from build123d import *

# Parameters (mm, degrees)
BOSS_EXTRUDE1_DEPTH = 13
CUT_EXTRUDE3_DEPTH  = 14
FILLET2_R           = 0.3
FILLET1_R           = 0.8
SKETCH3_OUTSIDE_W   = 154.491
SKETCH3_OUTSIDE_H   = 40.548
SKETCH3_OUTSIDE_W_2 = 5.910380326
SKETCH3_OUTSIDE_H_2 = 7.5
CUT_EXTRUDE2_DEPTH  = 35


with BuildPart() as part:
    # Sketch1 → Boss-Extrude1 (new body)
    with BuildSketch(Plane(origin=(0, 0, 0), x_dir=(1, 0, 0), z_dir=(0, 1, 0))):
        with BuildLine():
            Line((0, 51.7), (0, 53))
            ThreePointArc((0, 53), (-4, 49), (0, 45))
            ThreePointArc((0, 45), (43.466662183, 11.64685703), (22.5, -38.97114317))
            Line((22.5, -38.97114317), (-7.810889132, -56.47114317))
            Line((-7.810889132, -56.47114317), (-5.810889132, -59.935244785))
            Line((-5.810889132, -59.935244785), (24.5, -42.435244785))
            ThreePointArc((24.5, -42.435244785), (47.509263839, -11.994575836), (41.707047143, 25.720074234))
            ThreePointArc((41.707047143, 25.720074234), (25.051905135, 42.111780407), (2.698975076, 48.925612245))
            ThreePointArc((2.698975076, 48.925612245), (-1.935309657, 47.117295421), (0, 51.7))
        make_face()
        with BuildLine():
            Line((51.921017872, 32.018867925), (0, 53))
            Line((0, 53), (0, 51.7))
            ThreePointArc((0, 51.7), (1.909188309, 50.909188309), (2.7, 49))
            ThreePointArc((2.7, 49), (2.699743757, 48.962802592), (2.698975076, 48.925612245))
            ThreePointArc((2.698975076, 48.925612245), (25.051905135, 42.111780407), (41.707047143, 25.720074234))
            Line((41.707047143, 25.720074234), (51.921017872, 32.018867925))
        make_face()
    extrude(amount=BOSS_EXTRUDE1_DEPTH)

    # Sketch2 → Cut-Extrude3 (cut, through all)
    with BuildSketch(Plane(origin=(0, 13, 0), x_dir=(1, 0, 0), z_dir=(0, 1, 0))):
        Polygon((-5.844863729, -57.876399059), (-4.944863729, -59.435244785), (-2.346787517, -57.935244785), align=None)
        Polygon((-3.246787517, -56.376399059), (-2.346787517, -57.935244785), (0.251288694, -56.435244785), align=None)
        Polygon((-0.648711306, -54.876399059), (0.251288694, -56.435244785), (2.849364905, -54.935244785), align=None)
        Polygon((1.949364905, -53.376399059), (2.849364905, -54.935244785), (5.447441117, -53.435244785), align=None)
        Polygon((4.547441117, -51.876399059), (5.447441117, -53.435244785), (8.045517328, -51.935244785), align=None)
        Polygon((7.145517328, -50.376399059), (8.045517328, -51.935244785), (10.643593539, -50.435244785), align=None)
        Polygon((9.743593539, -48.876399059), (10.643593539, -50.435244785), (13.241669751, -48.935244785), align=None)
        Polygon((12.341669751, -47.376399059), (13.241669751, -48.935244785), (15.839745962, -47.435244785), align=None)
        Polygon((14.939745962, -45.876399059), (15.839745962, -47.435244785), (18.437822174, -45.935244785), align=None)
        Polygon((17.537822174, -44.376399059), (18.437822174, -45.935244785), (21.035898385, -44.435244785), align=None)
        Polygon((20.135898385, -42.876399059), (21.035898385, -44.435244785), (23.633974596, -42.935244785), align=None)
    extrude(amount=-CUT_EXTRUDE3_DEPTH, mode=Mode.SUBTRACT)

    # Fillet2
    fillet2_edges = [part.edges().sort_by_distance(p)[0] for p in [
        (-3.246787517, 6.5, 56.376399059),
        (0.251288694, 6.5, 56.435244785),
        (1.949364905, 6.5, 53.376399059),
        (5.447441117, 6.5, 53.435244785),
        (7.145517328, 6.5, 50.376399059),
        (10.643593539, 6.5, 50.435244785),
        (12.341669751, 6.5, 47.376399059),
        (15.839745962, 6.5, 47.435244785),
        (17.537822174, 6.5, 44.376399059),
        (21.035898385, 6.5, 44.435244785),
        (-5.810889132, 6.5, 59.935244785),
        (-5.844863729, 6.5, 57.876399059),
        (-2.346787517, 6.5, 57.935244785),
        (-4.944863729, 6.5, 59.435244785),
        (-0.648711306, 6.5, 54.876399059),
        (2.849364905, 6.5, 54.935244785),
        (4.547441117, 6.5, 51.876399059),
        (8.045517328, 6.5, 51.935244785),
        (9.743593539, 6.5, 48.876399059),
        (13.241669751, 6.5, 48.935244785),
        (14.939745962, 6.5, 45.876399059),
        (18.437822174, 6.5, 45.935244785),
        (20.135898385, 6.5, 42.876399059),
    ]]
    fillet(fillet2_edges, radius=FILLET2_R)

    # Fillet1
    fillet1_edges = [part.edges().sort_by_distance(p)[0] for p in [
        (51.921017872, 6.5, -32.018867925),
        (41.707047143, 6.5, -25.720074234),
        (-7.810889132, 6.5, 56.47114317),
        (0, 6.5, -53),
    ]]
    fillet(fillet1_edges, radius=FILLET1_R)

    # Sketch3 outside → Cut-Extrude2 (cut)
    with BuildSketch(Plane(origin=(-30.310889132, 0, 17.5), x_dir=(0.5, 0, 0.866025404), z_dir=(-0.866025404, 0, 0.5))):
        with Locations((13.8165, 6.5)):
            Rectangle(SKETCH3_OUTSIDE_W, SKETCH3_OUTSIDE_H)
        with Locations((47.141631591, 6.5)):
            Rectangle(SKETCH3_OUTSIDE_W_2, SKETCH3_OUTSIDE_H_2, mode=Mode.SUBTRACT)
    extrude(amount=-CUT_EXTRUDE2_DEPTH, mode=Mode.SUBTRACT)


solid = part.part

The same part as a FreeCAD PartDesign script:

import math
import FreeCAD as App
import Part
import Sketcher
Q = App.Units.Quantity


def edges_at(feature, points):
    """Names of the edges that pass closest to the given points."""
    edges = feature.Shape.Edges
    near = lambda p: min(range(len(edges)), key=lambda i: edges[i].distToShape(Part.Vertex(*p))[0])
    return sorted({f"Edge{near(p) + 1}" for p in points})


def add_polygon(sketch, points):
    """Adds a closed chain of lines whose ends are joined by coincident constraints."""
    first, n = sketch.GeometryCount, len(points)
    for a, b in zip(points, points[1:] + points[:1]):
        sketch.addGeometry(Part.LineSegment(App.Vector(*a, 0), App.Vector(*b, 0)), False)
    for i in range(n):
        sketch.addConstraint(Sketcher.Constraint("Coincident", first + i, 2, first + (i + 1) % n, 1))

doc = App.newDocument("Part")
body = doc.addObject("PartDesign::Body", "Body")

sketch1 = doc.addObject("Sketcher::SketchObject", "Sketch")
body.addObject(sketch1)
sketch1.AttachmentSupport = (doc.XZ_Plane, [""])
sketch1.MapMode = "FlatFace"
sketch1.addGeometry(Part.ArcOfCircle(Part.Circle(App.Vector(0, -49, 0), App.Vector(0, 0, 1), 4), math.radians(90), math.radians(270)), False)
sketch1.addGeometry(Part.ArcOfCircle(Part.Circle(App.Vector(0, 0, 0), App.Vector(0, 0, 1), 45), math.radians(-90), math.radians(60)), False)
sketch1.addGeometry(Part.LineSegment(App.Vector(22.5, 38.97, 0), App.Vector(-7.81, 56.47, 0)), False)
sketch1.addGeometry(Part.LineSegment(App.Vector(-7.81, 56.47, 0), App.Vector(-5.81, 59.94, 0)), False)
sketch1.addGeometry(Part.LineSegment(App.Vector(-5.81, 59.94, 0), App.Vector(24.5, 42.44, 0)), False)
sketch1.addGeometry(Part.ArcOfCircle(Part.Circle(App.Vector(0, 0, 0), App.Vector(0, 0, 1), 49), math.radians(-32), math.radians(60)), False)
sketch1.addGeometry(Part.LineSegment(App.Vector(41.71, -25.72, 0), App.Vector(51.92, -32.02, 0)), False)
sketch1.addGeometry(Part.LineSegment(App.Vector(51.92, -32.02, 0), App.Vector(0, -53, 0)), False)
sketch1.addGeometry(Part.ArcOfCircle(Part.Circle(App.Vector(0, -49, 0), App.Vector(0, 0, 1), 2.7), math.radians(2), math.radians(270)), False)
sketch1.addGeometry(Part.ArcOfCircle(Part.Circle(App.Vector(0, -49, 0), App.Vector(0, 0, 1), 2.7), math.radians(-90), math.radians(0)), False)
sketch1.addGeometry(Part.ArcOfCircle(Part.Circle(App.Vector(0, -49, 0), App.Vector(0, 0, 1), 2.7), math.radians(0), math.radians(1.58)), False)
sketch1.addConstraint(Sketcher.Constraint("Tangent", 0, 1, 1, 1))
sketch1.addConstraint(Sketcher.Constraint("Tangent", 1, 2, 2, 1))
sketch1.addConstraint(Sketcher.Constraint("Coincident", 2, 2, 3, 1))
sketch1.addConstraint(Sketcher.Constraint("Coincident", 3, 2, 4, 1))
sketch1.addConstraint(Sketcher.Constraint("Tangent", 4, 2, 5, 2))
sketch1.addConstraint(Sketcher.Constraint("Coincident", 5, 1, 6, 1))
sketch1.addConstraint(Sketcher.Constraint("Coincident", 6, 2, 7, 1))
sketch1.addConstraint(Sketcher.Constraint("Coincident", 7, 2, 0, 2))
sketch1.addConstraint(Sketcher.Constraint("Tangent", 8, 2, 9, 1))
sketch1.addConstraint(Sketcher.Constraint("Tangent", 9, 2, 10, 1))
sketch1.addConstraint(Sketcher.Constraint("Tangent", 10, 2, 8, 1))
sketch1.addConstraint(Sketcher.Constraint("Coincident", 1, 3, -1, 1))
sketch1.addConstraint(Sketcher.Constraint("Coincident", 5, 3, -1, 1))
sketch1.addConstraint(Sketcher.Constraint("Coincident", 8, 3, 0, 3))
sketch1.addConstraint(Sketcher.Constraint("PointOnObject", 0, 3, -2))
sketch1.addConstraint(Sketcher.Constraint("PointOnObject", 7, 2, -2))
sketch1.addConstraint(Sketcher.Constraint("PointOnObject", 8, 2, -2))
sketch1.addConstraint(Sketcher.Constraint("Perpendicular", 2, 3))
sketch1.addConstraint(Sketcher.Constraint("Perpendicular", 3, 4))
sketch1.addConstraint(Sketcher.Constraint("Horizontal", 10, 3, 9, 2))
sketch1.addConstraint(Sketcher.Constraint("Radius", 0, 4.0))
sketch1.addConstraint(Sketcher.Constraint("Radius", 1, 45.0))
sketch1.addConstraint(Sketcher.Constraint("Radius", 5, 49.0))
sketch1.addConstraint(Sketcher.Constraint("Radius", 8, 2.7))
sketch1.addConstraint(Sketcher.Constraint("Angle", 2, Q("150 deg")))
sketch1.addConstraint(Sketcher.Constraint("Distance", 2, 35.0))
sketch1.addConstraint(Sketcher.Constraint("Distance", 6, 12.0))
sketch1.addConstraint(Sketcher.Constraint("Distance", 7, 56.0))
sketch1.addConstraint(Sketcher.Constraint("DistanceX", 5, 1, 6, 2, 10.213971))
sketch1.addConstraint(Sketcher.Constraint("DistanceX", -1, 1, 10, 2, 2.698975))
pad1 = doc.addObject("PartDesign::Pad", "Pad")
body.addObject(pad1)
pad1.Profile = sketch1
pad1.Length = 13
pad1.Reversed = True

sketch2 = doc.addObject("Sketcher::SketchObject", "Sketch001")
body.addObject(sketch2)
sketch2.AttachmentSupport = (doc.XZ_Plane, [""])
sketch2.MapMode = "FlatFace"
sketch2.AttachmentOffset = App.Placement(App.Vector(0, 0, -13), App.Rotation())
add_polygon(sketch2, [(-5.8, 57.9), (-4.9, 59.4), (-2.3, 57.9)])
add_polygon(sketch2, [(-3.2, 56.4), (-2.3, 57.9), (0.3, 56.4)])
add_polygon(sketch2, [(-0.6, 54.9), (0.3, 56.4), (2.8, 54.9)])
add_polygon(sketch2, [(1.9, 53.4), (2.8, 54.9), (5.4, 53.4)])
add_polygon(sketch2, [(4.5, 51.9), (5.4, 53.4), (8, 51.9)])
add_polygon(sketch2, [(7.1, 50.4), (8, 51.9), (10.6, 50.4)])
add_polygon(sketch2, [(9.7, 48.9), (10.6, 50.4), (13.2, 48.9)])
add_polygon(sketch2, [(12.3, 47.4), (13.2, 48.9), (15.8, 47.4)])
add_polygon(sketch2, [(14.9, 45.9), (15.8, 47.4), (18.4, 45.9)])
add_polygon(sketch2, [(17.5, 44.4), (18.4, 45.9), (21, 44.4)])
add_polygon(sketch2, [(20.1, 42.9), (21, 44.4), (23.6, 42.9)])
sketch2.addConstraint(Sketcher.Constraint("Coincident", 3, 2, 1, 2))
sketch2.addConstraint(Sketcher.Constraint("Coincident", 6, 2, 4, 2))
sketch2.addConstraint(Sketcher.Constraint("Coincident", 9, 2, 7, 2))
sketch2.addConstraint(Sketcher.Constraint("Coincident", 12, 2, 10, 2))
sketch2.addConstraint(Sketcher.Constraint("Coincident", 15, 2, 13, 2))
sketch2.addConstraint(Sketcher.Constraint("Coincident", 18, 2, 16, 2))
sketch2.addConstraint(Sketcher.Constraint("Coincident", 21, 2, 19, 2))
sketch2.addConstraint(Sketcher.Constraint("Coincident", 24, 2, 22, 2))
sketch2.addConstraint(Sketcher.Constraint("Coincident", 27, 2, 25, 2))
sketch2.addConstraint(Sketcher.Constraint("Coincident", 30, 2, 28, 2))
sketch2.addConstraint(Sketcher.Constraint("Perpendicular", 0, 1))
sketch2.addConstraint(Sketcher.Constraint("Perpendicular", 1, 3))
sketch2.addConstraint(Sketcher.Constraint("Perpendicular", 3, 4))
sketch2.addConstraint(Sketcher.Constraint("Parallel", 2, 5))
sketch2.addConstraint(Sketcher.Constraint("Perpendicular", 4, 6))
sketch2.addConstraint(Sketcher.Constraint("Perpendicular", 6, 7))
sketch2.addConstraint(Sketcher.Constraint("Parallel", 5, 8))
sketch2.addConstraint(Sketcher.Constraint("Perpendicular", 7, 9))
sketch2.addConstraint(Sketcher.Constraint("Perpendicular", 9, 10))
sketch2.addConstraint(Sketcher.Constraint("Parallel", 8, 11))
sketch2.addConstraint(Sketcher.Constraint("Perpendicular", 10, 12))
sketch2.addConstraint(Sketcher.Constraint("Perpendicular", 12, 13))
sketch2.addConstraint(Sketcher.Constraint("Parallel", 11, 14))
sketch2.addConstraint(Sketcher.Constraint("Perpendicular", 13, 15))
sketch2.addConstraint(Sketcher.Constraint("Perpendicular", 15, 16))
sketch2.addConstraint(Sketcher.Constraint("Parallel", 14, 17))
sketch2.addConstraint(Sketcher.Constraint("Perpendicular", 16, 18))
sketch2.addConstraint(Sketcher.Constraint("Perpendicular", 18, 19))
sketch2.addConstraint(Sketcher.Constraint("Parallel", 17, 20))
sketch2.addConstraint(Sketcher.Constraint("Perpendicular", 19, 21))
sketch2.addConstraint(Sketcher.Constraint("Perpendicular", 21, 22))
sketch2.addConstraint(Sketcher.Constraint("Parallel", 20, 23))
sketch2.addConstraint(Sketcher.Constraint("Perpendicular", 22, 24))
sketch2.addConstraint(Sketcher.Constraint("Perpendicular", 24, 25))
sketch2.addConstraint(Sketcher.Constraint("Parallel", 23, 26))
sketch2.addConstraint(Sketcher.Constraint("Perpendicular", 25, 27))
sketch2.addConstraint(Sketcher.Constraint("Perpendicular", 27, 28))
sketch2.addConstraint(Sketcher.Constraint("Parallel", 26, 29))
sketch2.addConstraint(Sketcher.Constraint("Perpendicular", 28, 30))
sketch2.addConstraint(Sketcher.Constraint("Perpendicular", 30, 31))
sketch2.addConstraint(Sketcher.Constraint("Parallel", 29, 32))
sketch2.addConstraint(Sketcher.Constraint("Equal", 0, 3))
sketch2.addConstraint(Sketcher.Constraint("Equal", 3, 6))
sketch2.addConstraint(Sketcher.Constraint("Equal", 6, 9))
sketch2.addConstraint(Sketcher.Constraint("Equal", 9, 12))
sketch2.addConstraint(Sketcher.Constraint("Equal", 12, 15))
sketch2.addConstraint(Sketcher.Constraint("Equal", 15, 18))
sketch2.addConstraint(Sketcher.Constraint("Equal", 18, 21))
sketch2.addConstraint(Sketcher.Constraint("Equal", 21, 24))
sketch2.addConstraint(Sketcher.Constraint("Equal", 24, 27))
sketch2.addConstraint(Sketcher.Constraint("Equal", 27, 30))
sketch2.addConstraint(Sketcher.Constraint("Angle", 0, Q("60 deg")))
sketch2.addConstraint(Sketcher.Constraint("Distance", 1, 3.0))
sketch2.addConstraint(Sketcher.Constraint("Distance", 0, 1.8))
sketch2.addConstraint(Sketcher.Constraint("DistanceY", -1, 1, 2, 2, 57.876399))
sketch2.addConstraint(Sketcher.Constraint("DistanceX", -1, 1, 28, 2, 21.035898))
pocket1 = doc.addObject("PartDesign::Pocket", "Pocket")
body.addObject(pocket1)
pocket1.Profile = sketch2
pocket1.Type = "ThroughAll"
pocket1.Reversed = True
doc.recompute()

fillet = doc.addObject("PartDesign::Fillet", "Fillet")
body.addObject(fillet)
fillet.Base = (pocket1, edges_at(pocket1, [
    (-3.247, 6.5, 56.376),
    (0.251, 6.5, 56.435),
    (1.949, 6.5, 53.376),
    (5.447, 6.5, 53.435),
    (7.146, 6.5, 50.376),
    (10.644, 6.5, 50.435),
    (12.342, 6.5, 47.376),
    (15.84, 6.5, 47.435),
    (17.538, 6.5, 44.376),
    (21.036, 6.5, 44.435),
    (-5.811, 6.5, 59.935),
    (-5.845, 6.5, 57.876),
    (-2.347, 6.5, 57.935),
    (-4.945, 6.5, 59.435),
    (-0.649, 6.5, 54.876),
    (2.849, 6.5, 54.935),
    (4.547, 6.5, 51.876),
    (8.046, 6.5, 51.935),
    (9.744, 6.5, 48.876),
    (13.242, 6.5, 48.935),
    (14.94, 6.5, 45.876),
    (18.438, 6.5, 45.935),
    (20.136, 6.5, 42.876),
]))
fillet.Radius = 0.3
doc.recompute()

fillet2 = doc.addObject("PartDesign::Fillet", "Fillet001")
body.addObject(fillet2)
fillet2.Base = (fillet, edges_at(fillet, [
    (51.921, 6.5, -32.019),
    (41.707, 6.5, -25.72),
    (-7.811, 6.5, 56.471),
    (0, 6.5, -53),
]))
fillet2.Radius = 0.8

sketch3 = doc.addObject("Sketcher::SketchObject", "Sketch002")
body.addObject(sketch3)
sketch3.Placement = App.Placement(App.Vector(-30.310889, 0, 17.5), App.Rotation(App.Vector(0.5, 0, 0.866025404), App.Vector(0, 1, 0), App.Vector(-0.866025404, 0, 0.5), "ZXY"))
add_polygon(sketch3, [(-63, 27), (-63, -14), (91, -14), (91, 27)])
add_polygon(sketch3, [(50, 3), (44, 3), (44, 10), (50, 10)])
sketch3.addConstraint(Sketcher.Constraint("Vertical", 0))
sketch3.addConstraint(Sketcher.Constraint("Horizontal", 1))
sketch3.addConstraint(Sketcher.Constraint("Vertical", 2))
sketch3.addConstraint(Sketcher.Constraint("Horizontal", 3))
sketch3.addConstraint(Sketcher.Constraint("Horizontal", 4))
sketch3.addConstraint(Sketcher.Constraint("Vertical", 5))
sketch3.addConstraint(Sketcher.Constraint("Horizontal", 6))
sketch3.addConstraint(Sketcher.Constraint("Vertical", 7))
sketch3.addConstraint(Sketcher.Constraint("DistanceY", 5, 1, 5, 2, 7.5))
sketch3.addConstraint(Sketcher.Constraint("DistanceX", 1, 1, 1, 2, 154.491))
sketch3.addConstraint(Sketcher.Constraint("DistanceY", 0, 2, 0, 1, 40.548))
sketch3.addConstraint(Sketcher.Constraint("DistanceY", -1, 1, 4, 2, 2.75))
sketch3.addConstraint(Sketcher.Constraint("DistanceX", 0, 2, -1, 1, 63.429))
sketch3.addConstraint(Sketcher.Constraint("DistanceY", 0, 2, -1, 1, 13.774))
sketch3.addConstraint(Sketcher.Constraint("DistanceX", 4, 2, 4, 1, 5.91038))
sketch3.addConstraint(Sketcher.Constraint("DistanceX", -1, 1, 4, 2, 44.186441))
pocket2 = doc.addObject("PartDesign::Pocket", "Pocket001")
body.addObject(pocket2)
pocket2.Profile = sketch3
pocket2.Length = 35

doc.recompute()
